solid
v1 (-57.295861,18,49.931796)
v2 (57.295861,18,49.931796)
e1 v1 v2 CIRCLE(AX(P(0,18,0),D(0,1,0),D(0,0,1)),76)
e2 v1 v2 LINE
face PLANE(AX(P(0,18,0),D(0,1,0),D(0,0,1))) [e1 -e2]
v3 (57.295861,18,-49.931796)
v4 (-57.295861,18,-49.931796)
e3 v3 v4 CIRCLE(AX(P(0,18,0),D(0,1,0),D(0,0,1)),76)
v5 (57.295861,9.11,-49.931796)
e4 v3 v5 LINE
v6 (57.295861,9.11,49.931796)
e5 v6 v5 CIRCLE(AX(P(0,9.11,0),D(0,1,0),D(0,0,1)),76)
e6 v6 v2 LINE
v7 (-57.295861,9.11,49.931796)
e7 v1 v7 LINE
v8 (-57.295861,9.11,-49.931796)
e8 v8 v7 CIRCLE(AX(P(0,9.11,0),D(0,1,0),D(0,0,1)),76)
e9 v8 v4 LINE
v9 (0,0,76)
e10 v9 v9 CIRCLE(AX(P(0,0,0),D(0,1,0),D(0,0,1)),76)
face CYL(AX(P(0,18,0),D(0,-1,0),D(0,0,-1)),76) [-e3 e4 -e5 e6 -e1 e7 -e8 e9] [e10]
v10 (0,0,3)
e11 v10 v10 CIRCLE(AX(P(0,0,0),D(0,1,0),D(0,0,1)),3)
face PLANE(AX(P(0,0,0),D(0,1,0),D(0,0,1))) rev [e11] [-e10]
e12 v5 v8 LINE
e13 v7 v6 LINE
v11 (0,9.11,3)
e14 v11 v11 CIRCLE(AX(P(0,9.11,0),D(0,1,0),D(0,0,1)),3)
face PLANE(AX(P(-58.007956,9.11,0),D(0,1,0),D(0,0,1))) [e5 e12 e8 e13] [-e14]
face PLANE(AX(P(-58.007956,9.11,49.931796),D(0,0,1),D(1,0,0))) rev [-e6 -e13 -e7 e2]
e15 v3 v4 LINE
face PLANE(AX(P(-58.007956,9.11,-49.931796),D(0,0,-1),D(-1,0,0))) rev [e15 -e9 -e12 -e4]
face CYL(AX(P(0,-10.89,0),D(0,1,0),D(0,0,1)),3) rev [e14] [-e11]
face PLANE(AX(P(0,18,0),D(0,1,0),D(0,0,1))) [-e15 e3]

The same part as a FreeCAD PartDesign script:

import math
import FreeCAD as App
import Part
import Sketcher

doc = App.newDocument("Part")
params = doc.addObject("Spreadsheet::Sheet", "Params")
for row, (alias, value) in enumerate([
    ("sketch1_diameter", "152 mm"),
    ("pad1_length", "18 mm"),
    ("pocket1_length", "8.89 mm"),
    ("sketch3_diameter", "6 mm"),
    ("pocket2_length", "20 mm"),
], start=1):
    params.set(f"A{row}", alias)
    params.set(f"B{row}", "=" + value)
    params.setAlias(f"B{row}", alias)

body = doc.addObject("PartDesign::Body", "Body")

# Sketch on XZ plane
sketch1 = body.newObject("Sketcher::SketchObject", "Sketch")
sketch1.AttachmentSupport = (doc.getObject("XZ_Plane"), [""])
sketch1.MapMode = "FlatFace"
sketch1.addGeometry(Part.Circle(App.Vector(0, 0, 0), App.Vector(0, 0, 1), 76), False)
sketch1.addConstraint(Sketcher.Constraint("Coincident", 0, 3, -1, 1))
sketch1.addConstraint(Sketcher.Constraint("Diameter", 0, 152.0))
sketch1.setExpression("Constraints[1]", "Params.sketch1_diameter")
pad1 = body.newObject("PartDesign::Pad", "Pad")
pad1.Profile = sketch1
pad1.setExpression("Length", "Params.pad1_length")
pad1.Reversed = True

# Sketch on XZ plane
sketch2 = body.newObject("Sketcher::SketchObject", "Sketch001")
sketch2.AttachmentSupport = (doc.getObject("XZ_Plane"), [""])
sketch2.MapMode = "FlatFace"
sketch2.AttachmentOffset = App.Placement(App.Vector(0, 0, -18), App.Rotation())
sketch2.addGeometry(Part.LineSegment(App.Vector(58, -50, 0), App.Vector(-58, -50, 0)), False)
sketch2.addGeometry(Part.ArcOfCircle(Part.Circle(App.Vector(-58, 0, 0), App.Vector(0, 0, 1), 50), math.radians(90), math.radians(270)), False)
sketch2.addGeometry(Part.LineSegment(App.Vector(-58, 50, 0), App.Vector(58, 50, 0)), False)
sketch2.addGeometry(Part.ArcOfCircle(Part.Circle(App.Vector(58, 0, 0), App.Vector(0, 0, 1), 50), math.radians(-90), math.radians(90)), False)
sketch2.addConstraint(Sketcher.Constraint("Tangent", 0, 2, 1, 2))
sketch2.addConstraint(Sketcher.Constraint("Tangent", 1, 1, 2, 1))
sketch2.addConstraint(Sketcher.Constraint("Tangent", 2, 2, 3, 2))
sketch2.addConstraint(Sketcher.Constraint("Tangent", 3, 1, 0, 1))
sketch2.addConstraint(Sketcher.Constraint("Horizontal", 0))
sketch2.addConstraint(Sketcher.Constraint("Horizontal", 2))
sketch2.addConstraint(Sketcher.Constraint("Symmetric", 1, 3, 3, 3, -1, 1))
sketch2.addConstraint(Sketcher.Constraint("Radius", 1, 49.931796))
sketch2.addConstraint(Sketcher.Constraint("DistanceX", 0, 2, 0, 1, 116.015911))
pocket1 = body.newObject("PartDesign::Pocket", "Pocket")
pocket1.Profile = sketch2
pocket1.setExpression("Length", "Params.pocket1_length")
pocket1.Reversed = True

# Sketch on XZ plane
sketch3 = body.newObject("Sketcher::SketchObject", "Sketch002")
sketch3.AttachmentSupport = (doc.getObject("XZ_Plane"), [""])
sketch3.MapMode = "FlatFace"
sketch3.AttachmentOffset = App.Placement(App.Vector(0, 0, -9.11), App.Rotation())
sketch3.addGeometry(Part.Circle(App.Vector(0, 0, 0), App.Vector(0, 0, 1), 3), False)
sketch3.addConstraint(Sketcher.Constraint("Coincident", 0, 3, -1, 1))
sketch3.addConstraint(Sketcher.Constraint("Diameter", 0, 6.0))
sketch3.setExpression("Constraints[1]", "Params.sketch3_diameter")
pocket2 = body.newObject("PartDesign::Pocket", "Pocket001")
pocket2.Profile = sketch3
pocket2.setExpression("Length", "Params.pocket2_length")
pocket2.Reversed = True

doc.recompute()
